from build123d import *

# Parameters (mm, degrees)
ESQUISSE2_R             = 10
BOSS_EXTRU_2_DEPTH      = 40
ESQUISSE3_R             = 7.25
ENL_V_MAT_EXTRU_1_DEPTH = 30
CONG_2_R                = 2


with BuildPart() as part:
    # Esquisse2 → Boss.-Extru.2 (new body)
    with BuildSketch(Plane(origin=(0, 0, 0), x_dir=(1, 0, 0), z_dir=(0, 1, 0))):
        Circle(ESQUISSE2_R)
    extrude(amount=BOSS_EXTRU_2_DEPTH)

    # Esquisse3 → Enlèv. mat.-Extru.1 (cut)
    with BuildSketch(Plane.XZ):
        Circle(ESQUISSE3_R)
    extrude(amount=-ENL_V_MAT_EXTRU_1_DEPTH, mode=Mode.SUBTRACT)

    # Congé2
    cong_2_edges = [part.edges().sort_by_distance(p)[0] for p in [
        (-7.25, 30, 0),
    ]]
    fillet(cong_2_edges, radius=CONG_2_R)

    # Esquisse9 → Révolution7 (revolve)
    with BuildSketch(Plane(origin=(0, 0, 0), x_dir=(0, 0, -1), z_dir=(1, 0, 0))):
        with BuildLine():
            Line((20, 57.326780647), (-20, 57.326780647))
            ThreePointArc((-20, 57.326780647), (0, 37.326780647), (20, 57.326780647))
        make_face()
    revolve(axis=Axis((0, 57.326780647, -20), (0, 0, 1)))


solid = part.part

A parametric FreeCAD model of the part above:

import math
import FreeCAD as App
import Part
import Sketcher
from FreeCAD import Vector


def edges_at(feature, points):
    """Names of the edges that pass closest to the given points."""
    edges = feature.Shape.Edges
    near = lambda p: min(range(len(edges)), key=lambda i: edges[i].distToShape(Part.Vertex(*p))[0])
    return sorted({f"Edge{near(p) + 1}" for p in points})

doc = App.newDocument("Part")
body = doc.addObject("PartDesign::Body", "Body")

sketch1 = doc.addObject("Sketcher::SketchObject", "Sketch")
body.addObject(sketch1)
sketch1.AttachmentSupport = (doc.XZ_Plane, [""])
sketch1.MapMode = "FlatFace"
sketch1.addGeometry(Part.Circle(Vector(0, 0, 0), Vector(0, 0, 1), 10), False)
sketch1.addConstraint(Sketcher.Constraint("Coincident", 0, 3, -1, 1))
sketch1.addConstraint(Sketcher.Constraint("Diameter", 0, 20.0))
pad1 = doc.addObject("PartDesign::Pad", "Pad")
body.addObject(pad1)
pad1.Profile = sketch1
pad1.Length = 40
pad1.Reversed = True

sketch2 = doc.addObject("Sketcher::SketchObject", "Sketch001")
body.addObject(sketch2)
sketch2.AttachmentSupport = (doc.XZ_Plane, [""])
sketch2.MapMode = "FlatFace"
sketch2.addGeometry(Part.Circle(Vector(0, 0, 0), Vector(0, 0, 1), 7), False)
sketch2.addConstraint(Sketcher.Constraint("Coincident", 0, 3, -1, 1))
sketch2.addConstraint(Sketcher.Constraint("Diameter", 0, 14.5))
pocket1 = doc.addObject("PartDesign::Pocket", "Pocket")
body.addObject(pocket1)
pocket1.Profile = sketch2
pocket1.Length = 30
doc.recompute()

fillet = doc.addObject("PartDesign::Fillet", "Fillet")
body.addObject(fillet)
fillet.Base = (pocket1, edges_at(pocket1, [(-7.25, 30, 0)]))
fillet.Radius = 2

sketch3 = doc.addObject("Sketcher::SketchObject", "Sketch002")
body.addObject(sketch3)
sketch3.AttachmentSupport = (doc.YZ_Plane, [""])
sketch3.MapMode = "FlatFace"
sketch3.addGeometry(Part.LineSegment(Vector(57, -20, 0), Vector(57, 20, 0)), False)
sketch3.addGeometry(Part.ArcOfCircle(Part.Circle(Vector(57, 0, 0), Vector(0, 0, 1), 20), math.radians(90), math.radians(270)), False)
sketch3.addGeometry(Part.LineSegment(Vector(57, -20, 0), Vector(57, 20, 0)), True)
sketch3.addConstraint(Sketcher.Constraint("Coincident", 0, 1, 1, 2))
sketch3.addConstraint(Sketcher.Constraint("Coincident", 1, 1, 0, 2))
sketch3.addConstraint(Sketcher.Constraint("Vertical", 0))
sketch3.addConstraint(Sketcher.Constraint("Vertical", 2))
sketch3.addConstraint(Sketcher.Constraint("Coincident", 2, 1, 0, 1))
sketch3.addConstraint(Sketcher.Constraint("PointOnObject", 1, 3, -1))
sketch3.addConstraint(Sketcher.Constraint("Vertical", 1, 3, 0, 1))
sketch3.addConstraint(Sketcher.Constraint("Equal", 0, 2))
sketch3.addConstraint(Sketcher.Constraint("Radius", 1, 20.0))
sketch3.addConstraint(Sketcher.Constraint("DistanceX", -1, 1, 1, 3, 57.326781))
revolution = doc.addObject("PartDesign::Revolution", "Revolution")
body.addObject(revolution)
revolution.Profile = sketch3
revolution.ReferenceAxis = (sketch3, ["Axis0"])
revolution.Angle = 360

doc.recompute()
